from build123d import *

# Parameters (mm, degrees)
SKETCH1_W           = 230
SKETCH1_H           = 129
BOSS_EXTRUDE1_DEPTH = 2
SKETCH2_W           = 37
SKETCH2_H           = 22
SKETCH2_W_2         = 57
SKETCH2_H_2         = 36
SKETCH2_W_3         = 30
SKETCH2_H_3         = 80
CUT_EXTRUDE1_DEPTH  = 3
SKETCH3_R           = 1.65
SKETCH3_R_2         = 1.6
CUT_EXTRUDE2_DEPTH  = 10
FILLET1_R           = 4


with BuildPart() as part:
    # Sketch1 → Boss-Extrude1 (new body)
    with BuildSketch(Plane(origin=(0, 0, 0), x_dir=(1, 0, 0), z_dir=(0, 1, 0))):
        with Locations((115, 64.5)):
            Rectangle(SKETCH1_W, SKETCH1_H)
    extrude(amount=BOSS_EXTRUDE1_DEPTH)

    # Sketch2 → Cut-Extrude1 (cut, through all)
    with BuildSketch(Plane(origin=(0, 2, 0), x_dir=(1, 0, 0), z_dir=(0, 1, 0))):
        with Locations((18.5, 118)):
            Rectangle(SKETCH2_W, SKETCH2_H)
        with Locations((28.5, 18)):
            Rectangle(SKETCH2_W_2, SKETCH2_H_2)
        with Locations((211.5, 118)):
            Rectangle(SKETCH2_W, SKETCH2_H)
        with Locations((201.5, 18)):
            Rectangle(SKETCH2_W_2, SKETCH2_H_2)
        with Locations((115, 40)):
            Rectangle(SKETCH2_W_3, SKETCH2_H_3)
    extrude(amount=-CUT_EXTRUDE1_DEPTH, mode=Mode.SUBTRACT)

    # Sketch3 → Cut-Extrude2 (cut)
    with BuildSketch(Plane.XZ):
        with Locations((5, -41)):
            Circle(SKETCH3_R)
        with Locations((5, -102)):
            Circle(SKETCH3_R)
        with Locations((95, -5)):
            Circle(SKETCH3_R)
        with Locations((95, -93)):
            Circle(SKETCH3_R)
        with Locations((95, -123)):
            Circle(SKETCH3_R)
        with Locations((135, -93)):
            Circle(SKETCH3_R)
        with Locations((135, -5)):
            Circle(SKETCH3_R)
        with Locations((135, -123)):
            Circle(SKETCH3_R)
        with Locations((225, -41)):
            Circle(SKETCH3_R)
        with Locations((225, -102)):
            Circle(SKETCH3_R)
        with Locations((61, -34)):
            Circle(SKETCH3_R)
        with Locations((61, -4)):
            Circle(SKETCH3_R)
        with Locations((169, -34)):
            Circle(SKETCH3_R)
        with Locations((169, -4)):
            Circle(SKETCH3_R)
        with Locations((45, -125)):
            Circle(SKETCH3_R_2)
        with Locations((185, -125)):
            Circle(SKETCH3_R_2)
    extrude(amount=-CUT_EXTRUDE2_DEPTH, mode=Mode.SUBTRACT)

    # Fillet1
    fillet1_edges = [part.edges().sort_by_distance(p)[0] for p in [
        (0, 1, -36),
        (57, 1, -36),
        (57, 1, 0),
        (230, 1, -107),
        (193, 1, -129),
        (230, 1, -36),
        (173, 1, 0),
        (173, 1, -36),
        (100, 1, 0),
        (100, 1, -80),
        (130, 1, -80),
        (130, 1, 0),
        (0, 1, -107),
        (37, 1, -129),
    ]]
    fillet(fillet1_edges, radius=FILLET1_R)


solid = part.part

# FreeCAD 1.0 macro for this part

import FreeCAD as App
import Part
import Sketcher
from FreeCAD import Vector
Q = App.Units.Quantity


def edges_at(feature, points):
    """Names of the edges that pass closest to the given points."""
    edges = feature.Shape.Edges
    near = lambda p: min(range(len(edges)), key=lambda i: edges[i].distToShape(Part.Vertex(*p))[0])
    return sorted({f"Edge{near(p) + 1}" for p in points})


def add_polygon(sketch, points):
    """Adds a closed chain of lines whose ends are joined by coincident constraints."""
    first, n = sketch.GeometryCount, len(points)
    for a, b in zip(points, points[1:] + points[:1]):
        sketch.addGeometry(Part.LineSegment(App.Vector(*a, 0), App.Vector(*b, 0)), False)
    for i in range(n):
        sketch.addConstraint(Sketcher.Constraint("Coincident", first + i, 2, first + (i + 1) % n, 1))

doc = App.newDocument("Part")
body = doc.addObject("PartDesign::Body", "Body")

# Sketch on XZ plane
sketch1 = body.newObject("Sketcher::SketchObject", "Sketch")
sketch1.AttachmentSupport = (doc.getObject("XZ_Plane"), [""])
sketch1.MapMode = "FlatFace"
add_polygon(sketch1, [(0, -129), (0, 0), (230, 0), (230, -129)])  # lines 0-3
sketch1.addConstraint([
    Sketcher.Constraint("Vertical", 0),
    Sketcher.Constraint("Horizontal", 1),
    Sketcher.Constraint("Vertical", 2),
    Sketcher.Constraint("Horizontal", 3),
    Sketcher.Constraint("Coincident", 0, 2, -1, 1),
    Sketcher.Constraint("DistanceX", 1, 1, 1, 2, Q("230 mm")),
    Sketcher.Constraint("DistanceY", 0, 1, 0, 2, Q("129 mm")),
])
pad1 = body.newObject("PartDesign::Pad", "Pad")
pad1.Profile = sketch1
pad1.Length = 2
pad1.Reversed = True

# Sketch on XZ plane
sketch2 = body.newObject("Sketcher::SketchObject", "Sketch001")
sketch2.AttachmentSupport = (doc.getObject("XZ_Plane"), [""])
sketch2.MapMode = "FlatFace"
sketch2.AttachmentOffset = App.Placement(Vector(0, 0, -2), App.Rotation())
add_polygon(sketch2, [(0, -129), (0, -107), (37, -107), (37, -129)])  # lines 0-3
add_polygon(sketch2, [(0, -36), (0, 0), (57, 0), (57, -36)])  # lines 4-7
add_polygon(sketch2, [(193, -129), (193, -107), (230, -107), (230, -129)])  # lines 8-11
add_polygon(sketch2, [(173, -36), (173, 0), (230, 0), (230, -36)])  # lines 12-15
add_polygon(sketch2, [(100, -80), (100, 0), (130, 0), (130, -80)])  # lines 16-19
sketch2.addConstraint([
    Sketcher.Constraint("Vertical", 0),
    Sketcher.Constraint("Horizontal", 1),
    Sketcher.Constraint("Vertical", 2),
    Sketcher.Constraint("Horizontal", 3),
    Sketcher.Constraint("Vertical", 4),
    Sketcher.Constraint("Horizontal", 5),
    Sketcher.Constraint("Vertical", 6),
    Sketcher.Constraint("Horizontal", 7),
    Sketcher.Constraint("Vertical", 8),
    Sketcher.Constraint("Horizontal", 9),
    Sketcher.Constraint("Vertical", 10),
    Sketcher.Constraint("Horizontal", 11),
    Sketcher.Constraint("Vertical", 12),
    Sketcher.Constraint("Horizontal", 13),
    Sketcher.Constraint("Vertical", 14),
    Sketcher.Constraint("Horizontal", 15),
    Sketcher.Constraint("Vertical", 16),
    Sketcher.Constraint("Horizontal", 17),
    Sketcher.Constraint("Vertical", 18),
    Sketcher.Constraint("Horizontal", 19),
    Sketcher.Constraint("Coincident", 4, 2, -1, 1),
    Sketcher.Constraint("PointOnObject", 0, 2, -2),
    Sketcher.Constraint("PointOnObject", 12, 2, -1),
    Sketcher.Constraint("PointOnObject", 16, 2, -1),
    Sketcher.Constraint("Horizontal", 1, 2, 8, 2),
    Sketcher.Constraint("Horizontal", 3, 2, 10, 2),
    Sketcher.Constraint("Horizontal", 7, 2, 14, 2),
    Sketcher.Constraint("Vertical", 10, 2, 13, 2),
    Sketcher.Constraint("Equal", 3, 9),
    Sketcher.Constraint("Equal", 7, 13),
    Sketcher.Constraint("DistanceX", 1, 1, 1, 2, Q("37 mm")),
    Sketcher.Constraint("DistanceX", 5, 1, 5, 2, Q("57 mm")),
    Sketcher.Constraint("DistanceX", 17, 1, 17, 2, Q("30 mm")),
    Sketcher.Constraint("DistanceY", 0, 1, 0, 2, Q("22 mm")),
    Sketcher.Constraint("DistanceY", 4, 1, 4, 2, Q("36 mm")),
    Sketcher.Constraint("DistanceY", 16, 1, 16, 2, Q("80 mm")),
    Sketcher.Constraint("DistanceY", 0, 2, -1, 1, Q("107 mm")),
    Sketcher.Constraint("DistanceX", -1, 1, 8, 2, Q("193 mm")),
    Sketcher.Constraint("DistanceX", -1, 1, 16, 2, Q("100 mm")),
])
pocket1 = body.newObject("PartDesign::Pocket", "Pocket")
pocket1.Profile = sketch2
pocket1.Type = "ThroughAll"
pocket1.Reversed = True

# Sketch on XZ plane
sketch3 = body.newObject("Sketcher::SketchObject", "Sketch002")
sketch3.AttachmentSupport = (doc.getObject("XZ_Plane"), [""])
sketch3.MapMode = "FlatFace"
sketch3.addGeometry([
    Part.Circle(Vector(5, -41, 0), Vector(0, 0, 1), 1.6),  # 0
    Part.Circle(Vector(5, -102, 0), Vector(0, 0, 1), 1.6),  # 1
    Part.Circle(Vector(95, -5, 0), Vector(0, 0, 1), 1.6),  # 2
    Part.Circle(Vector(95, -93, 0), Vector(0, 0, 1), 1.6),  # 3
    Part.Circle(Vector(95, -123, 0), Vector(0, 0, 1), 1.6),  # 4
    Part.Circle(Vector(135, -93, 0), Vector(0, 0, 1), 1.6),  # 5
    Part.Circle(Vector(135, -5, 0), Vector(0, 0, 1), 1.6),  # 6
    Part.Circle(Vector(135, -123, 0), Vector(0, 0, 1), 1.6),  # 7
    Part.Circle(Vector(225, -41, 0), Vector(0, 0, 1), 1.6),  # 8
    Part.Circle(Vector(225, -102, 0), Vector(0, 0, 1), 1.6),  # 9
    Part.Circle(Vector(61, -34, 0), Vector(0, 0, 1), 1.6),  # 10
    Part.Circle(Vector(61, -4, 0), Vector(0, 0, 1), 1.6),  # 11
    Part.Circle(Vector(169, -34, 0), Vector(0, 0, 1), 1.6),  # 12
    Part.Circle(Vector(169, -4, 0), Vector(0, 0, 1), 1.6),  # 13
    Part.Circle(Vector(45, -125, 0), Vector(0, 0, 1), 1.6),  # 14
    Part.Circle(Vector(185, -125, 0), Vector(0, 0, 1), 1.6),  # 15
], False)
sketch3.addConstraint([
    Sketcher.Constraint("Equal", 0, 1),
    Sketcher.Constraint("Equal", 1, 2),
    Sketcher.Constraint("Equal", 2, 3),
    Sketcher.Constraint("Equal", 3, 4),
    Sketcher.Constraint("Equal", 4, 5),
    Sketcher.Constraint("Equal", 5, 6),
    Sketcher.Constraint("Equal", 6, 7),
    Sketcher.Constraint("Equal", 7, 8),
    Sketcher.Constraint("Equal", 8, 9),
    Sketcher.Constraint("Equal", 9, 10),
    Sketcher.Constraint("Equal", 10, 11),
    Sketcher.Constraint("Equal", 11, 12),
    Sketcher.Constraint("Equal", 12, 13),
    Sketcher.Constraint("Equal", 14, 15),
    Sketcher.Constraint("Horizontal", 3, 3, 5, 3),
    Sketcher.Constraint("Horizontal", 2, 3, 6, 3),
    Sketcher.Constraint("Horizontal", 4, 3, 7, 3),
    Sketcher.Constraint("Horizontal", 0, 3, 8, 3),
    Sketcher.Constraint("Horizontal", 1, 3, 9, 3),
    Sketcher.Constraint("Horizontal", 10, 3, 12, 3),
    Sketcher.Constraint("Horizontal", 11, 3, 13, 3),
    Sketcher.Constraint("Horizontal", 14, 3, 15, 3),
    Sketcher.Constraint("Vertical", 0, 3, 1, 3),
    Sketcher.Constraint("Vertical", 2, 3, 3, 3),
    Sketcher.Constraint("Vertical", 3, 3, 4, 3),
    Sketcher.Constraint("Vertical", 5, 3, 6, 3),
    Sketcher.Constraint("Vertical", 6, 3, 7, 3),
    Sketcher.Constraint("Vertical", 8, 3, 9, 3),
    Sketcher.Constraint("Vertical", 10, 3, 11, 3),
    Sketcher.Constraint("Vertical", 12, 3, 13, 3),
    Sketcher.Constraint("Diameter", 0, Q("3.3 mm")),
    Sketcher.Constraint("Diameter", 14, Q("3.2 mm")),
    Sketcher.Constraint("DistanceX", -1, 1, 0, 3, Q("5 mm")),
    Sketcher.Constraint("DistanceY", 0, 3, -1, 1, Q("41 mm")),
    Sketcher.Constraint("DistanceY", 1, 3, -1, 1, Q("102 mm")),
    Sketcher.Constraint("DistanceX", -1, 1, 2, 3, Q("95 mm")),
    Sketcher.Constraint("DistanceY", 2, 3, -1, 1, Q("5 mm")),
    Sketcher.Constraint("DistanceY", 3, 3, -1, 1, Q("93 mm")),
    Sketcher.Constraint("DistanceY", 4, 3, -1, 1, Q("123 mm")),
    Sketcher.Constraint("DistanceX", -1, 1, 5, 3, Q("135 mm")),
    Sketcher.Constraint("DistanceX", -1, 1, 8, 3, Q("225 mm")),
    Sketcher.Constraint("DistanceX", -1, 1, 10, 3, Q("61 mm")),
    Sketcher.Constraint("DistanceY", 10, 3, -1, 1, Q("34 mm")),
    Sketcher.Constraint("DistanceY", 11, 3, -1, 1, Q("4 mm")),
    Sketcher.Constraint("DistanceX", -1, 1, 12, 3, Q("169 mm")),
    Sketcher.Constraint("DistanceX", -1, 1, 14, 3, Q("45 mm")),
    Sketcher.Constraint("DistanceY", 14, 3, -1, 1, Q("125 mm")),
    Sketcher.Constraint("DistanceX", -1, 1, 15, 3, Q("185 mm")),
])
pocket2 = body.newObject("PartDesign::Pocket", "Pocket001")
pocket2.Profile = sketch3
pocket2.Length = 10
doc.recompute()

fillet = body.newObject("PartDesign::Fillet", "Fillet")
fillet.Base = (pocket2, edges_at(pocket2, [
    (0, 1, -36),
    (57, 1, -36),
    (57, 1, 0),
    (230, 1, -107),
    (193, 1, -129),
    (230, 1, -36),
    (173, 1, 0),
    (173, 1, -36),
    (100, 1, 0),
    (100, 1, -80),
    (130, 1, -80),
    (130, 1, 0),
    (0, 1, -107),
    (37, 1, -129),
]))
fillet.Radius = 4

doc.recompute()
